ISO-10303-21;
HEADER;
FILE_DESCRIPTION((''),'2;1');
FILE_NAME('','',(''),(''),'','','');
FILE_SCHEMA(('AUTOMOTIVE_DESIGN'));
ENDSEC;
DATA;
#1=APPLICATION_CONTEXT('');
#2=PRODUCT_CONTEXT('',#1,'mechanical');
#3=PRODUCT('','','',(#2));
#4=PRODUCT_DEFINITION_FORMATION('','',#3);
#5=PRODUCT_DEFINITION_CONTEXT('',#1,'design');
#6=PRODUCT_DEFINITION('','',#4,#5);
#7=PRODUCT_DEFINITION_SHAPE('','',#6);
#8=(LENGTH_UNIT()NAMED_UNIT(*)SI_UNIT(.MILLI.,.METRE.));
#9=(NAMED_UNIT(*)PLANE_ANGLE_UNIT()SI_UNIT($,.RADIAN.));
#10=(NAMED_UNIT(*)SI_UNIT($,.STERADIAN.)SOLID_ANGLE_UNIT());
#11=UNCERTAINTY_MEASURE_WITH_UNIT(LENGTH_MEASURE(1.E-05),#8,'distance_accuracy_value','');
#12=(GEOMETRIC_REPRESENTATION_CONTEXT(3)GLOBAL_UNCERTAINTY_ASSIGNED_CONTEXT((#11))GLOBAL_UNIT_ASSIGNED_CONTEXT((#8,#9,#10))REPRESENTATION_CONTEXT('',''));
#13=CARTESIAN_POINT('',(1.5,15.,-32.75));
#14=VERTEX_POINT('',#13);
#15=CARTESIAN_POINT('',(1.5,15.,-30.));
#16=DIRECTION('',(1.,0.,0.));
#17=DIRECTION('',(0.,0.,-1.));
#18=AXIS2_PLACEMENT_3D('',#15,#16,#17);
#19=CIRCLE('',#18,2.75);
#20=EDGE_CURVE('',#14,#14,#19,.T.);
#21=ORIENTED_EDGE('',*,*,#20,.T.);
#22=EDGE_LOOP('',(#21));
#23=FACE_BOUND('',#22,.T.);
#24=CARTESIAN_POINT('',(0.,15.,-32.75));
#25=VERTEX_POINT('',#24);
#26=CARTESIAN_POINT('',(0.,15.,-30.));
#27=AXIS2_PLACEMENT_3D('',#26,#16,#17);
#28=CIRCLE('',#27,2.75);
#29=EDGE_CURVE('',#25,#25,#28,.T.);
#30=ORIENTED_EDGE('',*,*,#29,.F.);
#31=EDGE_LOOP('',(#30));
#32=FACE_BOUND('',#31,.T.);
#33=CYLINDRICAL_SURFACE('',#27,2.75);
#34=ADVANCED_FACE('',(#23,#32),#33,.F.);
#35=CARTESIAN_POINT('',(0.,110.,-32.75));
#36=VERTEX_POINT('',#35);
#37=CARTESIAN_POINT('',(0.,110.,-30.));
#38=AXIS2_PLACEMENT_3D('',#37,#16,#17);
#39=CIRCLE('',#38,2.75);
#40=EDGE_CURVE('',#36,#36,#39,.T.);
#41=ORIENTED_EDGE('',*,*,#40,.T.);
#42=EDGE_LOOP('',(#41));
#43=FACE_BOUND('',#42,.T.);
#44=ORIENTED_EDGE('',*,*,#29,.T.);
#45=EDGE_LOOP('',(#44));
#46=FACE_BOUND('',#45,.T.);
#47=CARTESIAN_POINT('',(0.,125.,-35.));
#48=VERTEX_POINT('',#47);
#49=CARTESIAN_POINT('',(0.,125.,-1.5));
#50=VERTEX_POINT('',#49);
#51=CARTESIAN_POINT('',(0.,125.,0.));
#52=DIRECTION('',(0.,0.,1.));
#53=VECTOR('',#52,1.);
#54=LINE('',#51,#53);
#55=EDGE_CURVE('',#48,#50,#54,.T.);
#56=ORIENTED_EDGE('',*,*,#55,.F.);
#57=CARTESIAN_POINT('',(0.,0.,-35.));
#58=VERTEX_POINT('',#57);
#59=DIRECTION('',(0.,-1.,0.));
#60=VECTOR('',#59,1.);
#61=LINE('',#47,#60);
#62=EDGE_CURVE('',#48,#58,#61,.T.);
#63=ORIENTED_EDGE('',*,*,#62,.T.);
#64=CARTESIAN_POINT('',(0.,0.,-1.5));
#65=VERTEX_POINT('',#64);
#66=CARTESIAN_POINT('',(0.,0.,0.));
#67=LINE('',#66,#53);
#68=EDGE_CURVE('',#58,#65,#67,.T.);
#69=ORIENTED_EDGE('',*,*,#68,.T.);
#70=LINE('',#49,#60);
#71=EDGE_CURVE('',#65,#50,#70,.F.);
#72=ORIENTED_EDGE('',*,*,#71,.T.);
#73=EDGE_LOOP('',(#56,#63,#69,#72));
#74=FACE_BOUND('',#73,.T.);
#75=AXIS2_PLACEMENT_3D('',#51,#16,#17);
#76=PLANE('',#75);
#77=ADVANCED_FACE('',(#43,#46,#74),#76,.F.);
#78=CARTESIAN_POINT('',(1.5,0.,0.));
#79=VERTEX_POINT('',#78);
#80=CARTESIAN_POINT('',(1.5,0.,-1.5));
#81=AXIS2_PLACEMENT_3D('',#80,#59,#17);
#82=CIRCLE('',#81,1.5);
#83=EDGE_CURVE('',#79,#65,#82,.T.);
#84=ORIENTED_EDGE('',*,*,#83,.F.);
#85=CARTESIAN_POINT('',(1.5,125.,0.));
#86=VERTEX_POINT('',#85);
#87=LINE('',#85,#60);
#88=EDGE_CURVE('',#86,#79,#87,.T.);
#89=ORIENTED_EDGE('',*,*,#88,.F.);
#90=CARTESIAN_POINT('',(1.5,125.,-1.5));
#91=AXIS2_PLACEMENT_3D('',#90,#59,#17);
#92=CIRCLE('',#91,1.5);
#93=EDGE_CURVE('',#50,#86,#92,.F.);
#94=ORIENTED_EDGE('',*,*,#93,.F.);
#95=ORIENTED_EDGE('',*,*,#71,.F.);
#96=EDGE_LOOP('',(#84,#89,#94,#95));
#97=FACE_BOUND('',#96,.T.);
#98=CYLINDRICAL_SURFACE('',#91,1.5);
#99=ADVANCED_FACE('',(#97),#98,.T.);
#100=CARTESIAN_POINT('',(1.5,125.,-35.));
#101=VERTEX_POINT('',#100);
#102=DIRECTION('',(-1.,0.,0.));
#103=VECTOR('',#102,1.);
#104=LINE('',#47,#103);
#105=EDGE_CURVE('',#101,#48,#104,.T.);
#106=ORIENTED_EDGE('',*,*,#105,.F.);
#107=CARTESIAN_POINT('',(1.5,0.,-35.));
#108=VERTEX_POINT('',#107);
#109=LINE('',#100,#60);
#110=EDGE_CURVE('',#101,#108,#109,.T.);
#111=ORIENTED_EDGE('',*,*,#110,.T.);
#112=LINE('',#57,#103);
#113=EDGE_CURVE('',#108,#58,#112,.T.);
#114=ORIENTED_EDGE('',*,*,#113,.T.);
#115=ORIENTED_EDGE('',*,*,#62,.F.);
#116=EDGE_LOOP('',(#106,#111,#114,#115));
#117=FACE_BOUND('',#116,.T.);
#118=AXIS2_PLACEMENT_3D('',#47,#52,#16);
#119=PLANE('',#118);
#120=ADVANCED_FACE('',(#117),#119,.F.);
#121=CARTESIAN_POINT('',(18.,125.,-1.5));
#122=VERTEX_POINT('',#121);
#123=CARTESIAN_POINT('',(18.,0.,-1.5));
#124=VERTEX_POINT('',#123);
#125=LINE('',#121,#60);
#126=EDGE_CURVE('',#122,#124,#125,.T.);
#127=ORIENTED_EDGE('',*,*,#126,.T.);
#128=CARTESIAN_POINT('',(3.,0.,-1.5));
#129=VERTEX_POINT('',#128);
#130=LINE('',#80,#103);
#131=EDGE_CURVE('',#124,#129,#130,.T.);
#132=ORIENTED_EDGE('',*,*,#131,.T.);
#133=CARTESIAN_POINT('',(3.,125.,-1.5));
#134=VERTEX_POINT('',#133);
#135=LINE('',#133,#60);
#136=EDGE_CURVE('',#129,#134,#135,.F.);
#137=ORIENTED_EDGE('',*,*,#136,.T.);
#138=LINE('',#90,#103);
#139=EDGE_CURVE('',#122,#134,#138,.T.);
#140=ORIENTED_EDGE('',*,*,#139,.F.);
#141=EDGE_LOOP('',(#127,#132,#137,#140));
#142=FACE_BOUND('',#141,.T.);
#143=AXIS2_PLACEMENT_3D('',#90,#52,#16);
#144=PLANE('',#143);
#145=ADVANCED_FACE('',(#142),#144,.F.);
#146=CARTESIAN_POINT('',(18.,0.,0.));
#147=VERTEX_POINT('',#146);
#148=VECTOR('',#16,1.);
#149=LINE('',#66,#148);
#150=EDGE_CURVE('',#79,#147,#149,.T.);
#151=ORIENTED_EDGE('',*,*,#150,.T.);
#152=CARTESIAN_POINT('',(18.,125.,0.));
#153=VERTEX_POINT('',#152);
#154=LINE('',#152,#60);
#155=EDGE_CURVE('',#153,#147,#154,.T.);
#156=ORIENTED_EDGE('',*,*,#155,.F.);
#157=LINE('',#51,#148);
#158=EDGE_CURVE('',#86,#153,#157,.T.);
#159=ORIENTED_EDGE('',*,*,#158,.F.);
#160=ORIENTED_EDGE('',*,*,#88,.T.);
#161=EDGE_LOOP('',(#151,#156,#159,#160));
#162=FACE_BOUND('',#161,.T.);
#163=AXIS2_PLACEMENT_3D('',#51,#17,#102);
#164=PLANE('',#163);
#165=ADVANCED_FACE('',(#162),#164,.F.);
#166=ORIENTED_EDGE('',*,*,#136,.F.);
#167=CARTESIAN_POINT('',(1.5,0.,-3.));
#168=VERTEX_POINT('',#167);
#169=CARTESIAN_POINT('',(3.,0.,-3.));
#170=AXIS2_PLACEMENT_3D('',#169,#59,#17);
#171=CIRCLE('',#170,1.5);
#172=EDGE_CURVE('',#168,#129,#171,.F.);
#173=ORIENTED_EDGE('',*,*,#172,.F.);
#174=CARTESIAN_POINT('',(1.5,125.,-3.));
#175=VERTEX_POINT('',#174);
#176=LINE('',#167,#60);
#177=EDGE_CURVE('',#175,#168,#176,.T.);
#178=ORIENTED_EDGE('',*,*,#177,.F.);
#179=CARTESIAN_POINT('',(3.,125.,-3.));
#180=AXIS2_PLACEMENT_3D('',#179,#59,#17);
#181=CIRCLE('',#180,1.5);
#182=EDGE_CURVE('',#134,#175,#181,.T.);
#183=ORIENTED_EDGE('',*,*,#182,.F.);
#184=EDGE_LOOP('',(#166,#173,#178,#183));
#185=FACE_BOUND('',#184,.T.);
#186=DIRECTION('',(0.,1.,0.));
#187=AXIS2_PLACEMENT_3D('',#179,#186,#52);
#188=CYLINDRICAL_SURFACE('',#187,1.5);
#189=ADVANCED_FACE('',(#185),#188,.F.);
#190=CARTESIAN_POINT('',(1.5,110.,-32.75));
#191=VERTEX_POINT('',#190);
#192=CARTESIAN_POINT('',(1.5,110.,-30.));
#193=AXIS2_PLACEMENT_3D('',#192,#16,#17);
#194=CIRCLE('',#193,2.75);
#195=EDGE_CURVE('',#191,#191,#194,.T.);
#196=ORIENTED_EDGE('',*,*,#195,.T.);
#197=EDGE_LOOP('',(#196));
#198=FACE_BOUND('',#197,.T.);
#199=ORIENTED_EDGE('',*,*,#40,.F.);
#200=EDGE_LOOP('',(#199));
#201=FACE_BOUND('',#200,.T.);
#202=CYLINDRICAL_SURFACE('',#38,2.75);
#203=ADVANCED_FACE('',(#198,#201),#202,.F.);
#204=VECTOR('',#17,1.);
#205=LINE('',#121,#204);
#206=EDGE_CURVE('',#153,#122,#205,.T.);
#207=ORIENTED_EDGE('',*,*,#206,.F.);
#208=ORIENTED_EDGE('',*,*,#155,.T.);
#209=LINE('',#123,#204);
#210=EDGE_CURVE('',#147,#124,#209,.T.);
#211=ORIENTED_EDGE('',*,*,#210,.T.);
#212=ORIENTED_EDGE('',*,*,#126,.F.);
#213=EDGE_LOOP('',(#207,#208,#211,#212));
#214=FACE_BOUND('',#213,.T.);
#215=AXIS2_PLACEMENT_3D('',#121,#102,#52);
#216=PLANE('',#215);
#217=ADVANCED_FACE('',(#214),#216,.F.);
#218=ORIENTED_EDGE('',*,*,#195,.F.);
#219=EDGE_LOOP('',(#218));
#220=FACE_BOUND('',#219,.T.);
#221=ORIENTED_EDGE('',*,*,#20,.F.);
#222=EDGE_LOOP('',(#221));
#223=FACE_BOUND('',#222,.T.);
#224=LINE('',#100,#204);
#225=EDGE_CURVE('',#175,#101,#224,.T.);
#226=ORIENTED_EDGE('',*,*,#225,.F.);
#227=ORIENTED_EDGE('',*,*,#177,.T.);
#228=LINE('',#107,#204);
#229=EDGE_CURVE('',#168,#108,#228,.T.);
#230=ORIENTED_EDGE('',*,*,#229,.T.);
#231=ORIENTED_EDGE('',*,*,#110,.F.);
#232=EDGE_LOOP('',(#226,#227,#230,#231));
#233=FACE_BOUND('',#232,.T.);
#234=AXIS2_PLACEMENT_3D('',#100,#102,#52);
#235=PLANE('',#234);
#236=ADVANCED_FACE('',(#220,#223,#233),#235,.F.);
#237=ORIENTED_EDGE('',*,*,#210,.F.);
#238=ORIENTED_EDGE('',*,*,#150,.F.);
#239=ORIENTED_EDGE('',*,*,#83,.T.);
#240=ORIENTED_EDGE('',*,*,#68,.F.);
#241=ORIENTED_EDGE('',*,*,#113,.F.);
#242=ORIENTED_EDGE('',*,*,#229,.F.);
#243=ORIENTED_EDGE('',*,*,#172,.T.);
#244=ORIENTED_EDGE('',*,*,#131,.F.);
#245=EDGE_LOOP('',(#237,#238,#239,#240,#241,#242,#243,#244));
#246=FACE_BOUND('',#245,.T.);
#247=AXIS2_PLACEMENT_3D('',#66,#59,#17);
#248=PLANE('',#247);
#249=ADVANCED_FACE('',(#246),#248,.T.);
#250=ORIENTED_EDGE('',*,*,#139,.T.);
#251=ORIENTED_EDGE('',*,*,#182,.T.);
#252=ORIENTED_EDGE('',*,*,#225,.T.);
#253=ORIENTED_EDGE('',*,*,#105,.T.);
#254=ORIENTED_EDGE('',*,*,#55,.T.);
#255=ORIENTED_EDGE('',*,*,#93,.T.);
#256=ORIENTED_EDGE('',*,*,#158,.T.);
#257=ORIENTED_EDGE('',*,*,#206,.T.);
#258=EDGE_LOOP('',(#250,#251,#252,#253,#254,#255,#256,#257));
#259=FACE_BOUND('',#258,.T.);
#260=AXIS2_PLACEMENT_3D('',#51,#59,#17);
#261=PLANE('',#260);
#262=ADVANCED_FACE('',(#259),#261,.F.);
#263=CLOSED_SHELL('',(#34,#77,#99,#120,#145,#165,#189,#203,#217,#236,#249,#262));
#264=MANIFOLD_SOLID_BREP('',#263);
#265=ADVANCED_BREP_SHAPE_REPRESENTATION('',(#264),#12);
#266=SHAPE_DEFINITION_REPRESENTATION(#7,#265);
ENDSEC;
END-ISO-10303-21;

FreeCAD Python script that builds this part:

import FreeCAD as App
import Part
import Sketcher


def edges_at(feature, points):
    """Names of the edges that pass closest to the given points."""
    edges = feature.Shape.Edges
    near = lambda p: min(range(len(edges)), key=lambda i: edges[i].distToShape(Part.Vertex(*p))[0])
    return sorted({f"Edge{near(p) + 1}" for p in points})

doc = App.newDocument("Part")
body = doc.addObject("PartDesign::Body", "Body")

sketch1 = body.newObject("Sketcher::SketchObject", "Sketch")
sketch1.AttachmentSupport = (doc.getObject("XZ_Plane"), [""])
sketch1.MapMode = "FlatFace"
sketch1.addGeometry(Part.LineSegment(App.Vector(0, -35, 0), App.Vector(0, 0, 0)), False)
sketch1.addGeometry(Part.LineSegment(App.Vector(0, 0, 0), App.Vector(18, 0, 0)), False)
sketch1.addGeometry(Part.LineSegment(App.Vector(18, 0, 0), App.Vector(18, -1.5, 0)), False)
sketch1.addGeometry(Part.LineSegment(App.Vector(18, -1.5, 0), App.Vector(1.5, -1.5, 0)), False)
sketch1.addGeometry(Part.LineSegment(App.Vector(1.5, -1.5, 0), App.Vector(1.5, -35, 0)), False)
sketch1.addGeometry(Part.LineSegment(App.Vector(1.5, -35, 0), App.Vector(0, -35, 0)), False)
sketch1.addConstraint(Sketcher.Constraint("Coincident", 0, 2, 1, 1))
sketch1.addConstraint(Sketcher.Constraint("Coincident", 1, 2, 2, 1))
sketch1.addConstraint(Sketcher.Constraint("Coincident", 2, 2, 3, 1))
sketch1.addConstraint(Sketcher.Constraint("Coincident", 3, 2, 4, 1))
sketch1.addConstraint(Sketcher.Constraint("Coincident", 4, 2, 5, 1))
sketch1.addConstraint(Sketcher.Constraint("Coincident", 5, 2, 0, 1))
sketch1.addConstraint(Sketcher.Constraint("Vertical", 0))
sketch1.addConstraint(Sketcher.Constraint("Horizontal", 1))
sketch1.addConstraint(Sketcher.Constraint("Vertical", 2))
sketch1.addConstraint(Sketcher.Constraint("Horizontal", 3))
sketch1.addConstraint(Sketcher.Constraint("Vertical", 4))
sketch1.addConstraint(Sketcher.Constraint("Horizontal", 5))
sketch1.addConstraint(Sketcher.Constraint("Coincident", 0, 2, -1, 1))
sketch1.addConstraint(Sketcher.Constraint("Equal", 5, 2))
sketch1.addConstraint(Sketcher.Constraint("DistanceX", 1, 1, 1, 2, 18.0))
sketch1.addConstraint(Sketcher.Constraint("DistanceY", 0, 1, 0, 2, 35.0))
sketch1.addConstraint(Sketcher.Constraint("DistanceX", 3, 2, 3, 1, 16.5))
pad1 = body.newObject("PartDesign::Pad", "Pad")
pad1.Profile = sketch1
pad1.Length = 125
pad1.Reversed = True
doc.recompute()

fillet = body.newObject("PartDesign::Fillet", "Fillet")
fillet.Base = (pad1, edges_at(pad1, [(1.5, 62.5, -1.5)]))
fillet.Radius = 1.5
doc.recompute()

fillet2 = body.newObject("PartDesign::Fillet", "Fillet001")
fillet2.Base = (fillet, edges_at(fillet, [(0, 62.5, 0)]))
fillet2.Radius = 1.5

sketch2 = body.newObject("Sketcher::SketchObject", "Sketch001")
sketch2.AttachmentSupport = (doc.getObject("YZ_Plane"), [""])
sketch2.MapMode = "FlatFace"
sketch2.AttachmentOffset = App.Placement(App.Vector(0, 0, 1.5), App.Rotation())
sketch2.addGeometry(Part.Circle(App.Vector(110, -30, 0), App.Vector(0, 0, 1), 2.75), False)
sketch2.addGeometry(Part.Circle(App.Vector(15, -30, 0), App.Vector(0, 0, 1), 2.75), False)
sketch2.addConstraint(Sketcher.Constraint("Equal", 0, 1))
sketch2.addConstraint(Sketcher.Constraint("Horizontal", 0, 3, 1, 3))
sketch2.addConstraint(Sketcher.Constraint("Diameter", 0, 5.5))
sketch2.addConstraint(Sketcher.Constraint("DistanceX", -1, 1, 0, 3, 110.0))
sketch2.addConstraint(Sketcher.Constraint("DistanceY", 0, 3, -1, 1, 30.0))
sketch2.addConstraint(Sketcher.Constraint("DistanceX", -1, 1, 1, 3, 15.0))
pocket1 = body.newObject("PartDesign::Pocket", "Pocket")
pocket1.Profile = sketch2
pocket1.Type = "ThroughAll"

doc.recompute()
